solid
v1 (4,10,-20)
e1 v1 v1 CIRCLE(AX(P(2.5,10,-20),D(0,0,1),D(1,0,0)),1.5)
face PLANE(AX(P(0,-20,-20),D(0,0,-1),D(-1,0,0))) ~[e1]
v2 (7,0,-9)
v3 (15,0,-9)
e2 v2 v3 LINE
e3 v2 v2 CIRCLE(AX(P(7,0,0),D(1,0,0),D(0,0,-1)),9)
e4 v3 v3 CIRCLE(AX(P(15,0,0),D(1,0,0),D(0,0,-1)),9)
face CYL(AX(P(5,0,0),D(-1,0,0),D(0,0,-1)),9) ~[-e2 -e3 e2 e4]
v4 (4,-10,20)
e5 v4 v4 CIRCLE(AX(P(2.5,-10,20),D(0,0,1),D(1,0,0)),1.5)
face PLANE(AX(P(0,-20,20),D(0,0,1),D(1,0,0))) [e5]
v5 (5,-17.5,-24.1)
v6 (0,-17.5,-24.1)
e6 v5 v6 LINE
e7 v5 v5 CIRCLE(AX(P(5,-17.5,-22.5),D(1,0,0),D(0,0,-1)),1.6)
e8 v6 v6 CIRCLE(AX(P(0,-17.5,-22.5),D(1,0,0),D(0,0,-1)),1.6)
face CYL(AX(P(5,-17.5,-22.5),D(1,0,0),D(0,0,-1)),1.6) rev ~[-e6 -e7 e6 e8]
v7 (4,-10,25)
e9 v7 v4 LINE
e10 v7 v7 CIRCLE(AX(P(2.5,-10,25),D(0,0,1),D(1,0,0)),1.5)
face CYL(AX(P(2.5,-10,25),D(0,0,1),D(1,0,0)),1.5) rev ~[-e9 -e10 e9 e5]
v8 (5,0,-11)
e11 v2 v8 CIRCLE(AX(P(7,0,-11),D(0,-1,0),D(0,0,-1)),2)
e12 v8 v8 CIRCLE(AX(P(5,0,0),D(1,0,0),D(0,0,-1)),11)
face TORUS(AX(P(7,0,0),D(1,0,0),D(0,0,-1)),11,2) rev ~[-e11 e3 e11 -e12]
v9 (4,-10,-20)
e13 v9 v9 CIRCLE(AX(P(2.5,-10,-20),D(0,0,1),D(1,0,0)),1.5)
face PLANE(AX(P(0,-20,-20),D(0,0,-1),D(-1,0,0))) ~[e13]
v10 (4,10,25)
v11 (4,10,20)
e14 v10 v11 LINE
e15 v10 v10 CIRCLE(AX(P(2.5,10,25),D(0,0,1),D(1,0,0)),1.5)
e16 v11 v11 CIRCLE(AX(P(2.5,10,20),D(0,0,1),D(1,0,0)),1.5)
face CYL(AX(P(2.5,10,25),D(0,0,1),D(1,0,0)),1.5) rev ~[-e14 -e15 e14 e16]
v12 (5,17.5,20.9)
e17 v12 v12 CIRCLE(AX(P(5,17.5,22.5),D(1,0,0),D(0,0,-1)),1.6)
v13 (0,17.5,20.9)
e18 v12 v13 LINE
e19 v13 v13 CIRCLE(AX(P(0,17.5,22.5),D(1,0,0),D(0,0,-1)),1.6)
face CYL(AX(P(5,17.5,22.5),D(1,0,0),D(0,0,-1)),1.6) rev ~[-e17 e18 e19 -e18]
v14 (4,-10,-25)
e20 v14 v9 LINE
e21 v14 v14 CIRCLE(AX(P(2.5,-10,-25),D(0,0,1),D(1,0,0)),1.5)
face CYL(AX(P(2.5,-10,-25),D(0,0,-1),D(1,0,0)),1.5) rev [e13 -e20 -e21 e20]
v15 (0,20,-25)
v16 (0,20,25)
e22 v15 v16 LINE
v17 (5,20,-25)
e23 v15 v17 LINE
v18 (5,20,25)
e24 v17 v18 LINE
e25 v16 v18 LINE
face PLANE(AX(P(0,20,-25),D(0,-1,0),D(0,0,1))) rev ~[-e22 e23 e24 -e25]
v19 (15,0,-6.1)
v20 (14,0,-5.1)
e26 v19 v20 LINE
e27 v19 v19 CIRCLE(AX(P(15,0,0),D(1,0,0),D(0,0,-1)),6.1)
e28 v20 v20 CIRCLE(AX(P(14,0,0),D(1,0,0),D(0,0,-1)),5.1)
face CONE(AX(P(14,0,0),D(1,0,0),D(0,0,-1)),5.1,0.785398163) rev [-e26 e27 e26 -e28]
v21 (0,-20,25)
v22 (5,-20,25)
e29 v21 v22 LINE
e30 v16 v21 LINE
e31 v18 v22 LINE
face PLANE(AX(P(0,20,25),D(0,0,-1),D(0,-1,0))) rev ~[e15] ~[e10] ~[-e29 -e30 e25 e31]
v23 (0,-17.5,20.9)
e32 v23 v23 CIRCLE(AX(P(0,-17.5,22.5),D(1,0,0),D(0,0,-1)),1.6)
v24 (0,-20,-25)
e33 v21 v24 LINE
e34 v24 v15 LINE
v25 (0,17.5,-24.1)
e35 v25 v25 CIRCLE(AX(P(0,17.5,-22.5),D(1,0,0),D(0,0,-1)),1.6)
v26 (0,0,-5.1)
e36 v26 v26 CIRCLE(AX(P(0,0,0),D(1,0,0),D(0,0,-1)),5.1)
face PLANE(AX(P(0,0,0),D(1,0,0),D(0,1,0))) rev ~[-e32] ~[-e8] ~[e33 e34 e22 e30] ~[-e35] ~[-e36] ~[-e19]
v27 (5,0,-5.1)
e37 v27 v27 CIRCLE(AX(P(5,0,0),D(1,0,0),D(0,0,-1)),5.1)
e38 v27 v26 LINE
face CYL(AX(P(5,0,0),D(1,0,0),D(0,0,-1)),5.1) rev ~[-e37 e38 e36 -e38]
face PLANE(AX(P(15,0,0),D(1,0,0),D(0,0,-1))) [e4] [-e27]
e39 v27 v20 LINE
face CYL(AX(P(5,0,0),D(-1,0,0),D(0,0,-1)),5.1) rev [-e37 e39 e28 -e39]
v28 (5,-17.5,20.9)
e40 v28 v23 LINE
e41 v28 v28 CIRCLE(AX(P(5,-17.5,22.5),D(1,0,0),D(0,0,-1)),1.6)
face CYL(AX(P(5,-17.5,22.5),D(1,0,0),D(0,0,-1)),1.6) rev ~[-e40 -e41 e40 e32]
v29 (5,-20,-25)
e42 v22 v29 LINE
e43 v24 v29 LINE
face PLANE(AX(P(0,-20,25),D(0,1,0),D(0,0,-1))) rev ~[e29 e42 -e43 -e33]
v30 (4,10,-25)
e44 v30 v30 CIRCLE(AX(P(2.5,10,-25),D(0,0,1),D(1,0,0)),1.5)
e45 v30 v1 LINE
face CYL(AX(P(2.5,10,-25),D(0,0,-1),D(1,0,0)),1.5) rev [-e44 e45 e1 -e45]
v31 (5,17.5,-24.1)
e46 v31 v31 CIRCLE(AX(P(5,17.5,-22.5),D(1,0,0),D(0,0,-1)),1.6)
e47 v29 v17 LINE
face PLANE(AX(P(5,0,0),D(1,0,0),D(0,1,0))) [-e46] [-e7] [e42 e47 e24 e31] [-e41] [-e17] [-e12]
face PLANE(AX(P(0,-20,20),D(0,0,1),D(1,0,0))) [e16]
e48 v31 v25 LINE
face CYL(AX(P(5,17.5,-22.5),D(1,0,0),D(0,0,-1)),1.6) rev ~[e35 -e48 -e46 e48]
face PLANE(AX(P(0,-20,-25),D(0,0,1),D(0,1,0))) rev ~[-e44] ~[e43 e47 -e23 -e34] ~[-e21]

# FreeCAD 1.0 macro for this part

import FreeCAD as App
import Part
import Sketcher
Q = App.Units.Quantity


def edges_at(feature, points):
    """Names of the edges that pass closest to the given points."""
    edges = feature.Shape.Edges
    near = lambda p: min(range(len(edges)), key=lambda i: edges[i].distToShape(Part.Vertex(*p))[0])
    return sorted({f"Edge{near(p) + 1}" for p in points})

doc = App.newDocument("Part")
body = doc.addObject("PartDesign::Body", "Body")

# Sketch on YZ plane
sketch1 = body.newObject("Sketcher::SketchObject", "Sketch")
sketch1.AttachmentSupport = (doc.getObject("YZ_Plane"), [""])
sketch1.MapMode = "FlatFace"
sketch1.addGeometry(Part.LineSegment(App.Vector(20, -25, 0), App.Vector(20, 25, 0)), False)
sketch1.addGeometry(Part.LineSegment(App.Vector(20, 25, 0), App.Vector(-20, 25, 0)), False)
sketch1.addGeometry(Part.LineSegment(App.Vector(-20, 25, 0), App.Vector(-20, -25, 0)), False)
sketch1.addGeometry(Part.LineSegment(App.Vector(-20, -25, 0), App.Vector(20, -25, 0)), False)
sketch1.addConstraint(Sketcher.Constraint("Coincident", 0, 2, 1, 1))
sketch1.addConstraint(Sketcher.Constraint("Coincident", 1, 2, 2, 1))
sketch1.addConstraint(Sketcher.Constraint("Coincident", 2, 2, 3, 1))
sketch1.addConstraint(Sketcher.Constraint("Coincident", 3, 2, 0, 1))
sketch1.addConstraint(Sketcher.Constraint("Vertical", 0))
sketch1.addConstraint(Sketcher.Constraint("Horizontal", 1))
sketch1.addConstraint(Sketcher.Constraint("Vertical", 2))
sketch1.addConstraint(Sketcher.Constraint("Horizontal", 3))
sketch1.addConstraint(Sketcher.Constraint("Symmetric", 0, 2, 2, 2, -1, 1))
sketch1.addConstraint(Sketcher.Constraint("DistanceX", 1, 2, 1, 1, Q("40 mm")))
sketch1.addConstraint(Sketcher.Constraint("DistanceY", 0, 1, 0, 2, Q("50 mm")))
pad1 = body.newObject("PartDesign::Pad", "Pad")
pad1.Profile = sketch1
pad1.Length = 5

# Sketch on YZ plane
sketch2 = body.newObject("Sketcher::SketchObject", "Sketch001")
sketch2.AttachmentSupport = (doc.getObject("YZ_Plane"), [""])
sketch2.MapMode = "FlatFace"
sketch2.AttachmentOffset = App.Placement(App.Vector(0, 0, 5), App.Rotation())
sketch2.addGeometry(Part.Circle(App.Vector(0, 0, 0), App.Vector(0, 0, 1), 5), False)
sketch2.addConstraint(Sketcher.Constraint("Coincident", 0, 3, -1, 1))
sketch2.addConstraint(Sketcher.Constraint("Diameter", 0, Q("10.2 mm")))
pocket1 = body.newObject("PartDesign::Pocket", "Pocket")
pocket1.Profile = sketch2
pocket1.Type = "ThroughAll"

# Sketch on YZ plane
sketch3 = body.newObject("Sketcher::SketchObject", "Sketch002")
sketch3.AttachmentSupport = (doc.getObject("YZ_Plane"), [""])
sketch3.MapMode = "FlatFace"
sketch3.AttachmentOffset = App.Placement(App.Vector(0, 0, 5), App.Rotation())
sketch3.addGeometry(Part.Circle(App.Vector(0, 0, 0), App.Vector(0, 0, 1), 9), False)
sketch3.addGeometry(Part.Circle(App.Vector(0, 0, 0), App.Vector(0, 0, 1), 5), False)
sketch3.addConstraint(Sketcher.Constraint("Coincident", 0, 3, -1, 1))
sketch3.addConstraint(Sketcher.Constraint("Coincident", 1, 3, -1, 1))
sketch3.addConstraint(Sketcher.Constraint("Diameter", 0, Q("18 mm")))
sketch3.addConstraint(Sketcher.Constraint("Diameter", 1, Q("10.2 mm")))
pad2 = body.newObject("PartDesign::Pad", "Pad001")
pad2.Profile = sketch3
pad2.Length = 10
doc.recompute()

chamfer = body.newObject("PartDesign::Chamfer", "Chamfer")
chamfer.Base = (pad2, edges_at(pad2, [(15, 0, 5.1)]))
chamfer.Size = 1
doc.recompute()

fillet = body.newObject("PartDesign::Fillet", "Fillet")
fillet.Base = (chamfer, edges_at(chamfer, [(5, 0, 9)]))
fillet.Radius = 2

# Sketch on YZ plane
sketch4 = body.newObject("Sketcher::SketchObject", "Sketch003")
sketch4.AttachmentSupport = (doc.getObject("YZ_Plane"), [""])
sketch4.MapMode = "FlatFace"
sketch4.AttachmentOffset = App.Placement(App.Vector(0, 0, 5), App.Rotation())
sketch4.addGeometry(Part.Circle(App.Vector(17.5, 22.5, 0), App.Vector(0, 0, 1), 1.6), False)
sketch4.addGeometry(Part.Circle(App.Vector(17.5, -22.5, 0), App.Vector(0, 0, 1), 1.6), False)
sketch4.addGeometry(Part.Circle(App.Vector(-17.5, -22.5, 0), App.Vector(0, 0, 1), 1.6), False)
sketch4.addGeometry(Part.Circle(App.Vector(-17.5, 22.5, 0), App.Vector(0, 0, 1), 1.6), False)
sketch4.addConstraint(Sketcher.Constraint("Equal", 0, 1))
sketch4.addConstraint(Sketcher.Constraint("Equal", 1, 2))
sketch4.addConstraint(Sketcher.Constraint("Equal", 2, 3))
sketch4.addConstraint(Sketcher.Constraint("Symmetric", 0, 3, 2, 3, -1, 1))
sketch4.addConstraint(Sketcher.Constraint("Symmetric", 1, 3, 3, 3, -1, 1))
sketch4.addConstraint(Sketcher.Constraint("Symmetric", 1, 3, 2, 3, -2))
sketch4.addConstraint(Sketcher.Constraint("Diameter", 0, Q("3.2 mm")))
sketch4.addConstraint(Sketcher.Constraint("DistanceY", 1, 3, 0, 3, Q("45 mm")))
sketch4.addConstraint(Sketcher.Constraint("DistanceX", 2, 3, 1, 3, Q("35 mm")))
pocket2 = body.newObject("PartDesign::Pocket", "Pocket001")
pocket2.Profile = sketch4
pocket2.Type = "ThroughAll"

# Sketch on XY plane
sketch5 = body.newObject("Sketcher::SketchObject", "Sketch004")
sketch5.AttachmentSupport = (doc.getObject("XY_Plane"), [""])
sketch5.MapMode = "FlatFace"
sketch5.AttachmentOffset = App.Placement(App.Vector(0, 0, 25), App.Rotation())
sketch5.addGeometry(Part.Circle(App.Vector(2.5, 10, 0), App.Vector(0, 0, 1), 1.5), False)
sketch5.addGeometry(Part.Circle(App.Vector(2.5, -10, 0), App.Vector(0, 0, 1), 1.5), False)
sketch5.addConstraint(Sketcher.Constraint("Equal", 0, 1))
sketch5.addConstraint(Sketcher.Constraint("Symmetric", 0, 3, 1, 3, -1))
sketch5.addConstraint(Sketcher.Constraint("Diameter", 0, Q("3 mm")))
sketch5.addConstraint(Sketcher.Constraint("DistanceY", -1, 1, 0, 3, Q("10 mm")))
sketch5.addConstraint(Sketcher.Constraint("DistanceX", -1, 1, 0, 3, Q("2.5 mm")))
pocket3 = body.newObject("PartDesign::Pocket", "Pocket002")
pocket3.Profile = sketch5
pocket3.Length = 5
doc.recompute()

mirrored = body.newObject("PartDesign::Mirrored", "Mirrored")
mirrored.Originals = [pocket3]
mirrored.MirrorPlane = (doc.getObject("XY_Plane"), [""])
body.Tip = mirrored

doc.recompute()
